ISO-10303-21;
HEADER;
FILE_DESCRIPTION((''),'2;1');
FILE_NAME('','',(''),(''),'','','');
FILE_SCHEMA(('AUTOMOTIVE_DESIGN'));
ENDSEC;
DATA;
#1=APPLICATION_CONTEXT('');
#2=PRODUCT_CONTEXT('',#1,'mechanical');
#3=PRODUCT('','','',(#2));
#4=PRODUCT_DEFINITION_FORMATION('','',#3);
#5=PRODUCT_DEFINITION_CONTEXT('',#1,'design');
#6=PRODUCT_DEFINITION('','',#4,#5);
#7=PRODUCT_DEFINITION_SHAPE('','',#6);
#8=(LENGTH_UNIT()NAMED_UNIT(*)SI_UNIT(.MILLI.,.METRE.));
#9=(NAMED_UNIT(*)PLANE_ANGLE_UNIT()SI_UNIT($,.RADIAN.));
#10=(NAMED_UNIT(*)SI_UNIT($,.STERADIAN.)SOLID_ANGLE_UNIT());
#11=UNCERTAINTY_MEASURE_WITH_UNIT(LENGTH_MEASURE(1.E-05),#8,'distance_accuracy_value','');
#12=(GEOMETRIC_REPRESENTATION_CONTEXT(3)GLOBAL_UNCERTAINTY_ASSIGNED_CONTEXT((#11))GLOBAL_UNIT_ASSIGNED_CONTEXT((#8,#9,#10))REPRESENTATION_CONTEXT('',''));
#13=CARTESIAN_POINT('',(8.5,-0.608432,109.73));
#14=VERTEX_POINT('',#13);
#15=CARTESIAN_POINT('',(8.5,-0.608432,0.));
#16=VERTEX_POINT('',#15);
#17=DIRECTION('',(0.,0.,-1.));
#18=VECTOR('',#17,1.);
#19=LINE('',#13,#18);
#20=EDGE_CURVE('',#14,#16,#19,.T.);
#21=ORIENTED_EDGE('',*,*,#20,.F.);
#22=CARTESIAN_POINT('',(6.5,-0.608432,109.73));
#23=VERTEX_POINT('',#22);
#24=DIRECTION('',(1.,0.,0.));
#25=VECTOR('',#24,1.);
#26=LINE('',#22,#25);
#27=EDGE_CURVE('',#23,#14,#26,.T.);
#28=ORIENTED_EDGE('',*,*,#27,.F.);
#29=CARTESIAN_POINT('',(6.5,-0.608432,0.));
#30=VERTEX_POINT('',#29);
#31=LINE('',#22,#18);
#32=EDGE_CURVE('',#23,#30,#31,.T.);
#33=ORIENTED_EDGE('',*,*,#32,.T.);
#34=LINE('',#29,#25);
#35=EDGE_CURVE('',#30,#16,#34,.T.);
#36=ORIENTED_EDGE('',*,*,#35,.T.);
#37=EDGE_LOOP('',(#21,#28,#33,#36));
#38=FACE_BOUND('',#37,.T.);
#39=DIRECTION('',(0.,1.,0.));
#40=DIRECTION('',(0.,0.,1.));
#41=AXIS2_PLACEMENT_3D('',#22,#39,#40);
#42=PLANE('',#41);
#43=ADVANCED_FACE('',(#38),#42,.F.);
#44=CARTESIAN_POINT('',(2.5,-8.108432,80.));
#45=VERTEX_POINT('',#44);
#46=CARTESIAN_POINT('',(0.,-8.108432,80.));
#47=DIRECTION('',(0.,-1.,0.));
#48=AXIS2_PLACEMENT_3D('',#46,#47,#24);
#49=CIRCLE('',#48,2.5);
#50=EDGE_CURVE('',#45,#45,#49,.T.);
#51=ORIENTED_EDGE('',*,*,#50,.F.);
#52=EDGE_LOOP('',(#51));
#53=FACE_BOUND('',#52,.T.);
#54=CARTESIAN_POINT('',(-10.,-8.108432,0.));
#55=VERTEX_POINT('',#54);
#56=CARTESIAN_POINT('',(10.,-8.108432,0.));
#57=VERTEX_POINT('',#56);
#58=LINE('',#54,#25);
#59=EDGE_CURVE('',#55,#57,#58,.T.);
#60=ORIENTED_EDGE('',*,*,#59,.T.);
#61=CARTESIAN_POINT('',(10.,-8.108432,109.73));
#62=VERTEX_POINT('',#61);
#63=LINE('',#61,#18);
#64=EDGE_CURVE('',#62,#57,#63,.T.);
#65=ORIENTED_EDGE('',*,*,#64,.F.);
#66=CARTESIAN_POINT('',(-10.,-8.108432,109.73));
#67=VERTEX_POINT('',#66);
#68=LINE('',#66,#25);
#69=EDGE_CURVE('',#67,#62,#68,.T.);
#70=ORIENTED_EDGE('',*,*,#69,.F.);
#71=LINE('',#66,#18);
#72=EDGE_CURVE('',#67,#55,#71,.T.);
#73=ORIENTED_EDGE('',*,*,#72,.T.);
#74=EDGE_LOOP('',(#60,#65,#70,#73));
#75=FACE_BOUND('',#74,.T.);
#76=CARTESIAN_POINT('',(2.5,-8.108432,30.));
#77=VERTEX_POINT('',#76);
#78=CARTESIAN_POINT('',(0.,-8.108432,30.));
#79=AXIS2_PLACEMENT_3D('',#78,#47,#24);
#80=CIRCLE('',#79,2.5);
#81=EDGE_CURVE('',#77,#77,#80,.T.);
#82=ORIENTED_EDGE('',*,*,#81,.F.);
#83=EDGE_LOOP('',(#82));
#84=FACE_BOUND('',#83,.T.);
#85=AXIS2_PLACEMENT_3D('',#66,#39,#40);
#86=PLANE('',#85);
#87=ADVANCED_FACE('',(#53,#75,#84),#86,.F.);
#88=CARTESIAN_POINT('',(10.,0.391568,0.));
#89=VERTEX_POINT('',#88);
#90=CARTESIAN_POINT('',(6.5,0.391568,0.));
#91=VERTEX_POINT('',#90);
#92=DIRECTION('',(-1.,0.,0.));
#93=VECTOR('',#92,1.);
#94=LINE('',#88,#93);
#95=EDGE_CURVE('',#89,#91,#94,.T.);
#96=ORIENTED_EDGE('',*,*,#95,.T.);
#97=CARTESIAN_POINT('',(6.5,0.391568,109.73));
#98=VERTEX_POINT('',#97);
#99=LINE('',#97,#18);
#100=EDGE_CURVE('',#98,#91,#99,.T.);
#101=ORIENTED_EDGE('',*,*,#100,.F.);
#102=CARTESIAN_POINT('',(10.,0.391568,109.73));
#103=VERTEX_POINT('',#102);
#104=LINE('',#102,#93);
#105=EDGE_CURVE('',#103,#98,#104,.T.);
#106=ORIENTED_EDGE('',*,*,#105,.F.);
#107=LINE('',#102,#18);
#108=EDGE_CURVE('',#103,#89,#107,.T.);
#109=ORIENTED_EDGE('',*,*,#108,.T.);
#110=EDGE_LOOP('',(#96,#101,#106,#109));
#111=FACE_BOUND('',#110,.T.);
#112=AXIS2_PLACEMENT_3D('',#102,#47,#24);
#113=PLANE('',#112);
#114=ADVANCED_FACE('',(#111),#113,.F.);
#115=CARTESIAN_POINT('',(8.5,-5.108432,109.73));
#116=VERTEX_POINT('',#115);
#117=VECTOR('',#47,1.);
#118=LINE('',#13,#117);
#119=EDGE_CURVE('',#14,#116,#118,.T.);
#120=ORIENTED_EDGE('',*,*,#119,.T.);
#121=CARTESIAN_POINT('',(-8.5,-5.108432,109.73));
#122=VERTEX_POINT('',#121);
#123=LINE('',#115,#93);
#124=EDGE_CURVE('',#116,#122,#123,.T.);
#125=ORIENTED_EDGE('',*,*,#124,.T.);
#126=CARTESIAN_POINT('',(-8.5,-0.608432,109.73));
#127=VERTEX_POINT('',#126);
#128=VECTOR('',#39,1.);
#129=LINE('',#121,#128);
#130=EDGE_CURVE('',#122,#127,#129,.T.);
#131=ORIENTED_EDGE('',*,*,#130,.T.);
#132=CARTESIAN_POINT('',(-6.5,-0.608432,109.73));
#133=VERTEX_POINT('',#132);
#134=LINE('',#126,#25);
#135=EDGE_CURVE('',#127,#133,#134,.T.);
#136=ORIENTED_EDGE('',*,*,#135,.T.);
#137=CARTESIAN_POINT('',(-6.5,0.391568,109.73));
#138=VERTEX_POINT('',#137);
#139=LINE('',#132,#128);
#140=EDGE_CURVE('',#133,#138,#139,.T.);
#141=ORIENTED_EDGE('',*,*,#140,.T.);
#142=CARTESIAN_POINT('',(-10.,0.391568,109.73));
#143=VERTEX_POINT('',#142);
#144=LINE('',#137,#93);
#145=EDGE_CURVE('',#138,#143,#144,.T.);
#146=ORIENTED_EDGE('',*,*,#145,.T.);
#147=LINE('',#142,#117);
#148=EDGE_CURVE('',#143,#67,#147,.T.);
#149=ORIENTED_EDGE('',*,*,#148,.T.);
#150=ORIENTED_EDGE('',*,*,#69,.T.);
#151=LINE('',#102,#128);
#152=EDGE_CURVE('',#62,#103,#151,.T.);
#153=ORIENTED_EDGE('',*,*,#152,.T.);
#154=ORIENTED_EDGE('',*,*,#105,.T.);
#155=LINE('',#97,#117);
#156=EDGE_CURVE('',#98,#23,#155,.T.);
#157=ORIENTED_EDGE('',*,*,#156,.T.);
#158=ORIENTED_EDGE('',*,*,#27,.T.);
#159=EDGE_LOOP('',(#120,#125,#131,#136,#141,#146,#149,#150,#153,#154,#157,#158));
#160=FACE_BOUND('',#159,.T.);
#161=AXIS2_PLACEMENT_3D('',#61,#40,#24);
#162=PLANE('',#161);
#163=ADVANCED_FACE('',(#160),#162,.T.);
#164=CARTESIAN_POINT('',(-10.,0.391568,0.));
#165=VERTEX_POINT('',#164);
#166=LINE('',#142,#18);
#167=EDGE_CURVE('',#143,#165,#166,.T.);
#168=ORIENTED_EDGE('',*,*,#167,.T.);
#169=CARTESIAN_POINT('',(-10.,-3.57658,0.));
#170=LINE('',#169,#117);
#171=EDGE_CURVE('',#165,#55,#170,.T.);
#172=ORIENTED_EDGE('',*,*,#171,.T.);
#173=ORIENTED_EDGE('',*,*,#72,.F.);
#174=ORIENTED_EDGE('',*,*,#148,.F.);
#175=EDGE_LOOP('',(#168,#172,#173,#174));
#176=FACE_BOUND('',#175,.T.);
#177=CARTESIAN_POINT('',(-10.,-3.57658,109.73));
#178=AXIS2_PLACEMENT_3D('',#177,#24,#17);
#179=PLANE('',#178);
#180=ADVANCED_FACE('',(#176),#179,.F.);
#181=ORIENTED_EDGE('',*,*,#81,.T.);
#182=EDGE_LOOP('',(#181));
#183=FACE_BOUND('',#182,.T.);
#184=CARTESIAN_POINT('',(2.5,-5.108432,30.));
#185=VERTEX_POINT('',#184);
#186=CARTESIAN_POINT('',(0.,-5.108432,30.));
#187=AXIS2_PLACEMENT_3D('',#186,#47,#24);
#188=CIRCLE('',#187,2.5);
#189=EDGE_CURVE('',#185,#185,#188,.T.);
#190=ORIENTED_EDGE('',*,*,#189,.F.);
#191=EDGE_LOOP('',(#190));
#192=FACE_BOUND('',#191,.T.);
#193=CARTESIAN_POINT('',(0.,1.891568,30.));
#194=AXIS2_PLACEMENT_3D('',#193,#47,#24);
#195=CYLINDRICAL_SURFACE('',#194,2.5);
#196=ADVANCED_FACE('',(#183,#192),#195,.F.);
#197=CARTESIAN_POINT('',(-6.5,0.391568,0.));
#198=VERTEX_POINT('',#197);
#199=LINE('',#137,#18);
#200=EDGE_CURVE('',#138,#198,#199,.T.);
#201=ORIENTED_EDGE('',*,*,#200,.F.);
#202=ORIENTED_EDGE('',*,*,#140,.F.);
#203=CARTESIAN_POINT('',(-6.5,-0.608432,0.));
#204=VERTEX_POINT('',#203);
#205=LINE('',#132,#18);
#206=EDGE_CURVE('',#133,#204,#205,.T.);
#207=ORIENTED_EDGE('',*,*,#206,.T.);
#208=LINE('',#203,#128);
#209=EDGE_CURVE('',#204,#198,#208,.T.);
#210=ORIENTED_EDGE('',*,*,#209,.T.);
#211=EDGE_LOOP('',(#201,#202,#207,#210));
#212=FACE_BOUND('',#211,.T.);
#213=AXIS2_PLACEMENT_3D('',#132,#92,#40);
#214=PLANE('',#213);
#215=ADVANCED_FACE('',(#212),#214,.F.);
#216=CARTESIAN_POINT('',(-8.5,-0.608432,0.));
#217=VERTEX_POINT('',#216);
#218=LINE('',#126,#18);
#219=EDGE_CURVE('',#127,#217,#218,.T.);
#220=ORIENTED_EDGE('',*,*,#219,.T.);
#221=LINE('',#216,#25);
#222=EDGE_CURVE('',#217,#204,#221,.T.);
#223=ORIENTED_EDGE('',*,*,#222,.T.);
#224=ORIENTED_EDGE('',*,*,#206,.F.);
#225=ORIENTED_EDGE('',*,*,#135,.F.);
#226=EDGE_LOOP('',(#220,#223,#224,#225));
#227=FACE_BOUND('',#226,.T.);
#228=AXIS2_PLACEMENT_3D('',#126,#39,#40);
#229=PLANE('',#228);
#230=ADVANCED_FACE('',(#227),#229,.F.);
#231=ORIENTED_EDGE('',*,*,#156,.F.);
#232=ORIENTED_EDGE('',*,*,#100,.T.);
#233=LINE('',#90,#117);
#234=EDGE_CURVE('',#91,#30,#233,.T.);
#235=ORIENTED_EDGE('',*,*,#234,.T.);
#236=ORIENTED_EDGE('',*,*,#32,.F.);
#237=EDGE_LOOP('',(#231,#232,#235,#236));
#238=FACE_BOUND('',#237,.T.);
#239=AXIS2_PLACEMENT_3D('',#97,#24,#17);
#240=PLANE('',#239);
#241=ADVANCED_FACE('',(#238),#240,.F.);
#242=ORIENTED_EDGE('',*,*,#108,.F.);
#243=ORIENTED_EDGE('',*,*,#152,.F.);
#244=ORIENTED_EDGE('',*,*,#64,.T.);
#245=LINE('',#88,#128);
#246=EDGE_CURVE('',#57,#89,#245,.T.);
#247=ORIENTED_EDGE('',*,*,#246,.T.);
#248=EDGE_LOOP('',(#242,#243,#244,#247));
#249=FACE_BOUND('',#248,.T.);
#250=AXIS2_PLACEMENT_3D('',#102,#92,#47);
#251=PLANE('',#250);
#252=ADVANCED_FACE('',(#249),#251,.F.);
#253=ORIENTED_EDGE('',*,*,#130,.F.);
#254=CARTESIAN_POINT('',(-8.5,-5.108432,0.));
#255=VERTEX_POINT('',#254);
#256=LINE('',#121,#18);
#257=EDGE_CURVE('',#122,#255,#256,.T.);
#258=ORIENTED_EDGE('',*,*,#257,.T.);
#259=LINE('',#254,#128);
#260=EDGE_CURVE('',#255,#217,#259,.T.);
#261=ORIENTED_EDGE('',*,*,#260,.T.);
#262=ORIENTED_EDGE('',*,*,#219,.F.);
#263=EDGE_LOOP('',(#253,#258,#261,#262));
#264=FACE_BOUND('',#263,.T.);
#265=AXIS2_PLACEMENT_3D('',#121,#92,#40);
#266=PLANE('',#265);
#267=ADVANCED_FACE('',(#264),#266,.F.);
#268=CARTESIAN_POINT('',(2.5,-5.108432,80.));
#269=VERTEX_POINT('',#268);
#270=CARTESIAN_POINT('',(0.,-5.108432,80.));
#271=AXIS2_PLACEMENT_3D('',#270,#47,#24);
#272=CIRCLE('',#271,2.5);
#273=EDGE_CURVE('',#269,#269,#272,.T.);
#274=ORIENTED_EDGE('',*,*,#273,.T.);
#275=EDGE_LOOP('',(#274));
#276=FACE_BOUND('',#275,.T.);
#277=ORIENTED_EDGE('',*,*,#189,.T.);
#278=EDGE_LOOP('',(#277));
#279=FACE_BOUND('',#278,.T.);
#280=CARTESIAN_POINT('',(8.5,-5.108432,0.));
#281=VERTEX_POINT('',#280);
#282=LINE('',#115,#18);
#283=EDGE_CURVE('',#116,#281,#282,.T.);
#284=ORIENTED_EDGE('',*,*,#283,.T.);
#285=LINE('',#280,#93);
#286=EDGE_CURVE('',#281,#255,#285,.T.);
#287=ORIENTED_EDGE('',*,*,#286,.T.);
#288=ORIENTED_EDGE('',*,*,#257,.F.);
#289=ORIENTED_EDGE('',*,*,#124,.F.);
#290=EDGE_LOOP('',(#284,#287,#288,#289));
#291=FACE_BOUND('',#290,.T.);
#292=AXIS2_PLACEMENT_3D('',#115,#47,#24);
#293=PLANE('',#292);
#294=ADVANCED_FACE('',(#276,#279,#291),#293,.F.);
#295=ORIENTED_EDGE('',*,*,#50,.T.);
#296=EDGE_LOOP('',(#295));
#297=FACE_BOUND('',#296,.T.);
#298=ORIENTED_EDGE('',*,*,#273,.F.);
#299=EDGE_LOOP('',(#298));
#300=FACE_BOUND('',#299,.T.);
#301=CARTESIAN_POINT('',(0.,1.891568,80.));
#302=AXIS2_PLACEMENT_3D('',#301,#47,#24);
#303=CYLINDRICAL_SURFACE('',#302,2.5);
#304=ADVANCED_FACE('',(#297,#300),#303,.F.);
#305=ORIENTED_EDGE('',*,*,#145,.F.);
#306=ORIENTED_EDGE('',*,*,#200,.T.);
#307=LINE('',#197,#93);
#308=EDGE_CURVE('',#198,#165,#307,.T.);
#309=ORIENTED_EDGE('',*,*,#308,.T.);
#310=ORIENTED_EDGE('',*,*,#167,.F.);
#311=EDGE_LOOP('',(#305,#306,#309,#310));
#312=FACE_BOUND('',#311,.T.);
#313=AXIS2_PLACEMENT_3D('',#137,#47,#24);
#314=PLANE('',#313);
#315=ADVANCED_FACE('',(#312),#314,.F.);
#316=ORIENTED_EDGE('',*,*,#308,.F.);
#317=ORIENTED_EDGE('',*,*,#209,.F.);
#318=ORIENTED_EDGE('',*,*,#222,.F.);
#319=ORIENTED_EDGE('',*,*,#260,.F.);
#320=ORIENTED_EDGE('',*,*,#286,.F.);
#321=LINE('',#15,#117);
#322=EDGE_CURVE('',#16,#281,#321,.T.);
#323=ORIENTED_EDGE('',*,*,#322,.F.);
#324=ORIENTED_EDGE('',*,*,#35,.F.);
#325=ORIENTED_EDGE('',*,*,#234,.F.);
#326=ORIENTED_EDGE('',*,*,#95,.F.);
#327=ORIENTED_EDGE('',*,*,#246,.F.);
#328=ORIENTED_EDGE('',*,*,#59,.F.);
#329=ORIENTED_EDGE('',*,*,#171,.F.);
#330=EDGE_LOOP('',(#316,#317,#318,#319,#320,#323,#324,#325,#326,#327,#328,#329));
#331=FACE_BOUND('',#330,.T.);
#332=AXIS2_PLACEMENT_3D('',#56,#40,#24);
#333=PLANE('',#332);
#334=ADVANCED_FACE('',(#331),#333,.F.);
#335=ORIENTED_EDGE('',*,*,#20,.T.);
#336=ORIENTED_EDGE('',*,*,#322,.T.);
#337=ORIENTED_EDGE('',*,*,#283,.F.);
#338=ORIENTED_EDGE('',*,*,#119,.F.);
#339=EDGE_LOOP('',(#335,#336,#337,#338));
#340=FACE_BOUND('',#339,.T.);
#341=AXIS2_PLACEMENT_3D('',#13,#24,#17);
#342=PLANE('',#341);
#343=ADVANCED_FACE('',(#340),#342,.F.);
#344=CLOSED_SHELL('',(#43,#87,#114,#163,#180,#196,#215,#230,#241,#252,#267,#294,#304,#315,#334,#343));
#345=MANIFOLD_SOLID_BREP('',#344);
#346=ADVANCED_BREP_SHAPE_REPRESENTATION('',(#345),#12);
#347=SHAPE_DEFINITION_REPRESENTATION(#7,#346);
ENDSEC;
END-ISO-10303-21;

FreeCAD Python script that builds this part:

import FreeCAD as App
import Part
import Sketcher

V = App.Vector
Q = App.Units.Quantity

doc = App.newDocument("Part")
params = doc.addObject("Spreadsheet::Sheet", "Params")
for row, (alias, value) in enumerate([
    ("sketch1_width", "20 mm"),
    ("sketch1_width2", "2 mm"),
    ("sketch1_width3", "17 mm"),
    ("sketch1_height", "1 mm"),
    ("sketch1_height2", "8.5 mm"),
    ("pad1_length", "109.73 mm"),
    ("sketch2_diameter", "5 mm"),
    ("pocket1_length", "10 mm"),
], start=1):
    params.set(f"A{row}", alias)
    params.set(f"B{row}", "=" + value)
    params.setAlias(f"B{row}", alias)

body = doc.addObject("PartDesign::Body", "Body")

sketch1 = body.newObject("Sketcher::SketchObject", "Sketch")
sketch1.AttachmentSupport = (doc.getObject("XY_Plane"), [""])
sketch1.MapMode = "FlatFace"
sketch1.addGeometry(Part.LineSegment(V(-10, 0.4, 0), V(-10, -8.1, 0)), False)
sketch1.addGeometry(Part.LineSegment(V(-10, -8.1, 0), V(10, -8.1, 0)), False)
sketch1.addGeometry(Part.LineSegment(V(10, -8.1, 0), V(10, 0.4, 0)), False)
sketch1.addGeometry(Part.LineSegment(V(10, 0.4, 0), V(6.5, 0.4, 0)), False)
sketch1.addGeometry(Part.LineSegment(V(6.5, 0.4, 0), V(6.5, -0.6, 0)), False)
sketch1.addGeometry(Part.LineSegment(V(6.5, -0.6, 0), V(8.5, -0.6, 0)), False)
sketch1.addGeometry(Part.LineSegment(V(8.5, -0.6, 0), V(8.5, -5.1, 0)), False)
sketch1.addGeometry(Part.LineSegment(V(8.5, -5.1, 0), V(-8.5, -5.1, 0)), False)
sketch1.addGeometry(Part.LineSegment(V(-8.5, -5.1, 0), V(-8.5, -0.6, 0)), False)
sketch1.addGeometry(Part.LineSegment(V(-8.5, -0.6, 0), V(-6.5, -0.6, 0)), False)
sketch1.addGeometry(Part.LineSegment(V(-6.5, -0.6, 0), V(-6.5, 0.4, 0)), False)
sketch1.addGeometry(Part.LineSegment(V(-6.5, 0.4, 0), V(-10, 0.4, 0)), False)
sketch1.addConstraint(Sketcher.Constraint("Coincident", 0, 2, 1, 1))
sketch1.addConstraint(Sketcher.Constraint("Coincident", 1, 2, 2, 1))
sketch1.addConstraint(Sketcher.Constraint("Coincident", 2, 2, 3, 1))
sketch1.addConstraint(Sketcher.Constraint("Coincident", 3, 2, 4, 1))
sketch1.addConstraint(Sketcher.Constraint("Coincident", 4, 2, 5, 1))
sketch1.addConstraint(Sketcher.Constraint("Coincident", 5, 2, 6, 1))
sketch1.addConstraint(Sketcher.Constraint("Coincident", 6, 2, 7, 1))
sketch1.addConstraint(Sketcher.Constraint("Coincident", 7, 2, 8, 1))
sketch1.addConstraint(Sketcher.Constraint("Coincident", 8, 2, 9, 1))
sketch1.addConstraint(Sketcher.Constraint("Coincident", 9, 2, 10, 1))
sketch1.addConstraint(Sketcher.Constraint("Coincident", 10, 2, 11, 1))
sketch1.addConstraint(Sketcher.Constraint("Coincident", 11, 2, 0, 1))
sketch1.addConstraint(Sketcher.Constraint("Vertical", 0))
sketch1.addConstraint(Sketcher.Constraint("Horizontal", 1))
sketch1.addConstraint(Sketcher.Constraint("Vertical", 2))
sketch1.addConstraint(Sketcher.Constraint("Horizontal", 3))
sketch1.addConstraint(Sketcher.Constraint("Vertical", 4))
sketch1.addConstraint(Sketcher.Constraint("Horizontal", 5))
sketch1.addConstraint(Sketcher.Constraint("Vertical", 6))
sketch1.addConstraint(Sketcher.Constraint("Horizontal", 7))
sketch1.addConstraint(Sketcher.Constraint("Vertical", 8))
sketch1.addConstraint(Sketcher.Constraint("Horizontal", 9))
sketch1.addConstraint(Sketcher.Constraint("Vertical", 10))
sketch1.addConstraint(Sketcher.Constraint("Horizontal", 11))
sketch1.addConstraint(Sketcher.Constraint("Symmetric", 5, 2, 8, 2, -2))
sketch1.addConstraint(Sketcher.Constraint("Symmetric", 3, 2, 10, 2, -2))
sketch1.addConstraint(Sketcher.Constraint("Equal", 3, 11))
sketch1.addConstraint(Sketcher.Constraint("DistanceX", 1, 1, 1, 2, Q("20 mm")))
sketch1.addConstraint(Sketcher.Constraint("DistanceX", 5, 1, 5, 2, Q("2 mm")))
sketch1.addConstraint(Sketcher.Constraint("DistanceX", 7, 2, 7, 1, Q("17 mm")))
sketch1.addConstraint(Sketcher.Constraint("DistanceY", 4, 2, 4, 1, Q("1 mm")))
sketch1.addConstraint(Sketcher.Constraint("DistanceY", 0, 2, 0, 1, Q("8.5 mm")))
sketch1.addConstraint(Sketcher.Constraint("DistanceY", 6, 2, 6, 1, Q("4.5 mm")))
sketch1.addConstraint(Sketcher.Constraint("DistanceY", 0, 2, -1, 1, Q("8.108432 mm")))
sketch1.setExpression("Constraints[27]", "Params.sketch1_width")
sketch1.setExpression("Constraints[28]", "Params.sketch1_width2")
sketch1.setExpression("Constraints[29]", "Params.sketch1_width3")
sketch1.setExpression("Constraints[30]", "Params.sketch1_height")
sketch1.setExpression("Constraints[31]", "Params.sketch1_height2")
pad1 = body.newObject("PartDesign::Pad", "Pad")
pad1.Profile = sketch1
pad1.setExpression("Length", "Params.pad1_length")

sketch2 = body.newObject("Sketcher::SketchObject", "Sketch001")
sketch2.AttachmentSupport = (doc.getObject("XZ_Plane"), [""])
sketch2.MapMode = "FlatFace"
sketch2.AttachmentOffset = App.Placement(V(0, 0, 8.108432), App.Rotation())
sketch2.addGeometry(Part.Circle(V(0, 30, 0), V(0, 0, 1), 2.5), False)
sketch2.addGeometry(Part.Circle(V(0, 80, 0), V(0, 0, 1), 2.5), False)
sketch2.addConstraint(Sketcher.Constraint("Equal", 0, 1))
sketch2.addConstraint(Sketcher.Constraint("PointOnObject", 0, 3, -2))
sketch2.addConstraint(Sketcher.Constraint("PointOnObject", 1, 3, -2))
sketch2.addConstraint(Sketcher.Constraint("Diameter", 0, Q("5 mm")))
sketch2.addConstraint(Sketcher.Constraint("DistanceY", -1, 1, 0, 3, Q("30 mm")))
sketch2.addConstraint(Sketcher.Constraint("DistanceY", -1, 1, 1, 3, Q("80 mm")))
sketch2.setExpression("Constraints[3]", "Params.sketch2_diameter")
pocket1 = body.newObject("PartDesign::Pocket", "Pocket")
pocket1.Profile = sketch2
pocket1.setExpression("Length", "Params.pocket1_length")

doc.recompute()
